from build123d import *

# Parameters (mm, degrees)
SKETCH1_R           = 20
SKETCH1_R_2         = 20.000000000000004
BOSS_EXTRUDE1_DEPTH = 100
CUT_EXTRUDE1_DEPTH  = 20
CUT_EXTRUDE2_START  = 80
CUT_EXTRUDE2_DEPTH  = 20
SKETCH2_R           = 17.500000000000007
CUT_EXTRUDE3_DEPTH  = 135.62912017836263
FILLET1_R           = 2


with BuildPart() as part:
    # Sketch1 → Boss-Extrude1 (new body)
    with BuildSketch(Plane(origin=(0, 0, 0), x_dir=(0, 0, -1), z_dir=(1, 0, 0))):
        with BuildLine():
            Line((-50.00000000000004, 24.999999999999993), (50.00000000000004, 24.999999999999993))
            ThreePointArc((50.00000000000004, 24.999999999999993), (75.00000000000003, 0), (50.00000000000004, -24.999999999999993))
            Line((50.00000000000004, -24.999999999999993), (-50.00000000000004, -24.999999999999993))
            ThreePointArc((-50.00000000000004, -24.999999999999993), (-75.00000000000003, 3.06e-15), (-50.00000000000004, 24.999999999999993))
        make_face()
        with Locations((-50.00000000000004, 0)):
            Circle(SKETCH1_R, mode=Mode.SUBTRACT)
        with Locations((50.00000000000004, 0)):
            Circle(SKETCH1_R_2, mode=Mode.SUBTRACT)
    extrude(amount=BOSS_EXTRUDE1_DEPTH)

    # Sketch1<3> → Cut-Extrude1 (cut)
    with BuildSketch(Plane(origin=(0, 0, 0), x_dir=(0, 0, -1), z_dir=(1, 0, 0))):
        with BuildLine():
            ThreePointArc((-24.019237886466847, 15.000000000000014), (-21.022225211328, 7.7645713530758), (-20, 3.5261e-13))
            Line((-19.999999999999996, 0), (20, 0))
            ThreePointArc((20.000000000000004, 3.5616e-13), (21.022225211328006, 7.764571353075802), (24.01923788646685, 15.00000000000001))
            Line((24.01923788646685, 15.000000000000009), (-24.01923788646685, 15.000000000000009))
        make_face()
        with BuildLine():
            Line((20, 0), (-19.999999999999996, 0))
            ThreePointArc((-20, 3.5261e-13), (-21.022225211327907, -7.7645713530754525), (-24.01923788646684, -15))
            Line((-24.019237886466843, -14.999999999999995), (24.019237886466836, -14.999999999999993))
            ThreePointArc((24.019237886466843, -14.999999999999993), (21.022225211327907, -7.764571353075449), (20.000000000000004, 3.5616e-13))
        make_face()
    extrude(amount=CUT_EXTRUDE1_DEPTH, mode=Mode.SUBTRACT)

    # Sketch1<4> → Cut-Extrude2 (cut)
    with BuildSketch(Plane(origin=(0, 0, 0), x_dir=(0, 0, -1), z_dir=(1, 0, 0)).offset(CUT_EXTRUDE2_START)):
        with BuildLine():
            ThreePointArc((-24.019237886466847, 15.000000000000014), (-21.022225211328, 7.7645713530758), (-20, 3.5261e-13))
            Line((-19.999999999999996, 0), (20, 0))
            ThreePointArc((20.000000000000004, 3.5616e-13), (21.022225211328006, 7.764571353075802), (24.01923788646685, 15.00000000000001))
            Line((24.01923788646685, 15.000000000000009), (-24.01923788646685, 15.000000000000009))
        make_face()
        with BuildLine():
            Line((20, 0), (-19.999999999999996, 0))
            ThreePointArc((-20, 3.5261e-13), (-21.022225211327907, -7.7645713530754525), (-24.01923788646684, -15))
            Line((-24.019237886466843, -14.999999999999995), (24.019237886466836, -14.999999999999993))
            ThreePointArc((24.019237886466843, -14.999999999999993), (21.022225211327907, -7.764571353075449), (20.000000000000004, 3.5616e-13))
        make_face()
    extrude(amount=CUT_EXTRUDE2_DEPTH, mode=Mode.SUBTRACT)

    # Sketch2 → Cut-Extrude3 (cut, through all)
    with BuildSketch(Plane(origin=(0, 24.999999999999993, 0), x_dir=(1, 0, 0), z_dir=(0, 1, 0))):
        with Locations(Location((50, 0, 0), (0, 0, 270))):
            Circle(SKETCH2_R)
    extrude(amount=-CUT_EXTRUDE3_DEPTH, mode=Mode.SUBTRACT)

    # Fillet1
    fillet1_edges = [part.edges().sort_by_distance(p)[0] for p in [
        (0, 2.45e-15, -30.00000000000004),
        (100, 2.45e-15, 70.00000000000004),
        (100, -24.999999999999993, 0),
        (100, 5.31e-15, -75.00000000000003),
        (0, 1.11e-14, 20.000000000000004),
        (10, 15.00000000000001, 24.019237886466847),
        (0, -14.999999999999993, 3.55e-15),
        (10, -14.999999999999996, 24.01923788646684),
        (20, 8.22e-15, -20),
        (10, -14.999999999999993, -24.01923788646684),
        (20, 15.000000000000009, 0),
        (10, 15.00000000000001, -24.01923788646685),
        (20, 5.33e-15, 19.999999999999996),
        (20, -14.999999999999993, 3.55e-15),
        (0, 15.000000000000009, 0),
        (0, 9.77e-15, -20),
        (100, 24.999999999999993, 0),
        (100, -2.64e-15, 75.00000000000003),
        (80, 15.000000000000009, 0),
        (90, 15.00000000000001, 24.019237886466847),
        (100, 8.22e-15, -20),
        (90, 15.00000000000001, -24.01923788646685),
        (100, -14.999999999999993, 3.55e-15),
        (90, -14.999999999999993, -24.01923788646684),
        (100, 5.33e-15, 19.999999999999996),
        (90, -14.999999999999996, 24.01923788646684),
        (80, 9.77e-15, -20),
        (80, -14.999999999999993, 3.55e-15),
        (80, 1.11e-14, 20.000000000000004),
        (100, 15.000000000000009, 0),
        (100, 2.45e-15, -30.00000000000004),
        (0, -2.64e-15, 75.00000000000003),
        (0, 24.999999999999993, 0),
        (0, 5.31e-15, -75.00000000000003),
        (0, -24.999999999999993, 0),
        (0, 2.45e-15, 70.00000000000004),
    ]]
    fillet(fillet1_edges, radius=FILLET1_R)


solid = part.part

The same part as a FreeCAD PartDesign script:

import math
import FreeCAD as App
import Part
import Sketcher
from FreeCAD import Vector
Q = App.Units.Quantity


def edges_at(feature, points):
    """Names of the edges that pass closest to the given points."""
    edges = feature.Shape.Edges
    near = lambda p: min(range(len(edges)), key=lambda i: edges[i].distToShape(Part.Vertex(*p))[0])
    return sorted({f"Edge{near(p) + 1}" for p in points})

doc = App.newDocument("Part")
body = doc.addObject("PartDesign::Body", "Body")

# Sketch on YZ plane
sketch1 = doc.addObject("Sketcher::SketchObject", "Sketch")
body.addObject(sketch1)
sketch1.AttachmentSupport = (doc.YZ_Plane, [""])
sketch1.MapMode = "FlatFace"
sketch1.addGeometry([
    Part.LineSegment(Vector(25, -50, 0), Vector(25, 50, 0)),  # 0
    Part.ArcOfCircle(Part.Circle(Vector(0, 50, 0), Vector(0, 0, 1), 25), math.radians(0), math.radians(180)),  # 1
    Part.LineSegment(Vector(-25, 50, 0), Vector(-25, -50, 0)),  # 2
    Part.ArcOfCircle(Part.Circle(Vector(0, -50, 0), Vector(0, 0, 1), 25), math.radians(180), math.radians(360)),  # 3
    Part.Circle(Vector(0, -50, 0), Vector(0, 0, 1), 20),  # 4
    Part.Circle(Vector(0, 50, 0), Vector(0, 0, 1), 20),  # 5
], False)
sketch1.addConstraint([
    Sketcher.Constraint("Tangent", 0, 2, 1, 1),
    Sketcher.Constraint("Tangent", 1, 2, 2, 1),
    Sketcher.Constraint("Tangent", 2, 2, 3, 1),
    Sketcher.Constraint("Tangent", 3, 2, 0, 1),
    Sketcher.Constraint("Vertical", 0),
    Sketcher.Constraint("Vertical", 2),
    Sketcher.Constraint("Coincident", 4, 3, 3, 3),
    Sketcher.Constraint("Coincident", 5, 3, 1, 3),
    Sketcher.Constraint("Equal", 4, 5),
    Sketcher.Constraint("Symmetric", 1, 3, 3, 3, -1, 1),
    Sketcher.Constraint("Diameter", 4, Q("40 mm")),
    Sketcher.Constraint("Radius", 1, Q("25 mm")),
    Sketcher.Constraint("DistanceY", 0, 1, 0, 2, Q("100 mm")),
])
pad1 = doc.addObject("PartDesign::Pad", "Pad")
body.addObject(pad1)
pad1.Profile = sketch1
pad1.Length = 100

# Sketch on YZ plane
sketch2 = doc.addObject("Sketcher::SketchObject", "Sketch001")
body.addObject(sketch2)
sketch2.AttachmentSupport = (doc.YZ_Plane, [""])
sketch2.MapMode = "FlatFace"
sketch2.addGeometry([
    Part.ArcOfCircle(Part.Circle(Vector(0, 50, 0), Vector(0, 0, 1), 30), math.radians(-120), math.radians(-60)),
    Part.LineSegment(Vector(-15, 24, 0), Vector(-15, -24, 0)),
    Part.ArcOfCircle(Part.Circle(Vector(0, -50, 0), Vector(0, 0, 1), 30), math.radians(60), math.radians(120)),
    Part.LineSegment(Vector(15, -24, 0), Vector(15, 24, 0)),
], False)
sketch2.addConstraint([
    Sketcher.Constraint("Coincident", 0, 1, 1, 1),
    Sketcher.Constraint("Coincident", 1, 2, 2, 2),
    Sketcher.Constraint("Coincident", 2, 1, 3, 1),
    Sketcher.Constraint("Coincident", 3, 2, 0, 2),
    Sketcher.Constraint("Vertical", 1),
    Sketcher.Constraint("Vertical", 3),
    Sketcher.Constraint("Equal", 0, 2),
    Sketcher.Constraint("Symmetric", 0, 3, 2, 3, -1, 1),
    Sketcher.Constraint("Symmetric", 1, 2, 2, 1, -2),
    Sketcher.Constraint("Radius", 0, Q("30 mm")),
    Sketcher.Constraint("DistanceY", -1, 1, 0, 3, Q("50 mm")),
    Sketcher.Constraint("DistanceX", 0, 1, -1, 1, Q("15 mm")),
])
pocket1 = doc.addObject("PartDesign::Pocket", "Pocket")
body.addObject(pocket1)
pocket1.Profile = sketch2
pocket1.Length = 20
pocket1.Reversed = True

# Sketch on YZ plane
sketch3 = doc.addObject("Sketcher::SketchObject", "Sketch002")
body.addObject(sketch3)
sketch3.AttachmentSupport = (doc.YZ_Plane, [""])
sketch3.MapMode = "FlatFace"
sketch3.AttachmentOffset = App.Placement(Vector(0, 0, 80), App.Rotation())
sketch3.addGeometry([
    Part.ArcOfCircle(Part.Circle(Vector(0, 50, 0), Vector(0, 0, 1), 30), math.radians(-120), math.radians(-60)),
    Part.LineSegment(Vector(-15, 24, 0), Vector(-15, -24, 0)),
    Part.ArcOfCircle(Part.Circle(Vector(0, -50, 0), Vector(0, 0, 1), 30), math.radians(60), math.radians(120)),
    Part.LineSegment(Vector(15, -24, 0), Vector(15, 24, 0)),
], False)
sketch3.addConstraint([
    Sketcher.Constraint("Coincident", 0, 1, 1, 1),
    Sketcher.Constraint("Coincident", 1, 2, 2, 2),
    Sketcher.Constraint("Coincident", 2, 1, 3, 1),
    Sketcher.Constraint("Coincident", 3, 2, 0, 2),
    Sketcher.Constraint("Vertical", 1),
    Sketcher.Constraint("Vertical", 3),
    Sketcher.Constraint("Equal", 0, 2),
    Sketcher.Constraint("Symmetric", 0, 3, 2, 3, -1, 1),
    Sketcher.Constraint("Symmetric", 1, 2, 2, 1, -2),
    Sketcher.Constraint("Radius", 0, Q("30 mm")),
    Sketcher.Constraint("DistanceY", -1, 1, 0, 3, Q("50 mm")),
    Sketcher.Constraint("DistanceX", 0, 1, -1, 1, Q("15 mm")),
])
pocket2 = doc.addObject("PartDesign::Pocket", "Pocket001")
body.addObject(pocket2)
pocket2.Profile = sketch3
pocket2.Length = 20
pocket2.Reversed = True

# Sketch on XZ plane
sketch4 = doc.addObject("Sketcher::SketchObject", "Sketch003")
body.addObject(sketch4)
sketch4.AttachmentSupport = (doc.XZ_Plane, [""])
sketch4.MapMode = "FlatFace"
sketch4.AttachmentOffset = App.Placement(Vector(0, 0, -25), App.Rotation())
sketch4.addGeometry(Part.Circle(Vector(50, 0, 0), Vector(0, 0, 1), 18), False)
sketch4.addConstraint([
    Sketcher.Constraint("PointOnObject", 0, 3, -1),
    Sketcher.Constraint("Diameter", 0, Q("35 mm")),
    Sketcher.Constraint("DistanceX", -1, 1, 0, 3, Q("50 mm")),
])
pocket3 = doc.addObject("PartDesign::Pocket", "Pocket002")
body.addObject(pocket3)
pocket3.Profile = sketch4
pocket3.Type = "ThroughAll"
pocket3.Reversed = True
doc.recompute()

fillet = doc.addObject("PartDesign::Fillet", "Fillet")
body.addObject(fillet)
fillet.Base = (pocket3, edges_at(pocket3, [
    (0, 0, -30),
    (100, 0, 70),
    (100, -25, 0),
    (100, 0, -75),
    (0, 0, 20),
    (10, 15, 24.019),
    (0, -15, 0),
    (10, -15, 24.019),
    (20, 0, -20),
    (10, -15, -24.019),
    (20, 15, 0),
    (10, 15, -24.019),
    (20, 0, 20),
    (20, -15, 0),
    (0, 15, 0),
    (0, 0, -20),
    (100, 25, 0),
    (100, 0, 75),
    (80, 15, 0),
    (90, 15, 24.019),
    (100, 0, -20),
    (90, 15, -24.019),
    (100, -15, 0),
    (90, -15, -24.019),
    (100, 0, 20),
    (90, -15, 24.019),
    (80, 0, -20),
    (80, -15, 0),
    (80, 0, 20),
    (100, 15, 0),
    (100, 0, -30),
    (0, 0, 75),
    (0, 25, 0),
    (0, 0, -75),
    (0, -25, 0),
    (0, 0, 70),
]))
fillet.Radius = 2

doc.recompute()
